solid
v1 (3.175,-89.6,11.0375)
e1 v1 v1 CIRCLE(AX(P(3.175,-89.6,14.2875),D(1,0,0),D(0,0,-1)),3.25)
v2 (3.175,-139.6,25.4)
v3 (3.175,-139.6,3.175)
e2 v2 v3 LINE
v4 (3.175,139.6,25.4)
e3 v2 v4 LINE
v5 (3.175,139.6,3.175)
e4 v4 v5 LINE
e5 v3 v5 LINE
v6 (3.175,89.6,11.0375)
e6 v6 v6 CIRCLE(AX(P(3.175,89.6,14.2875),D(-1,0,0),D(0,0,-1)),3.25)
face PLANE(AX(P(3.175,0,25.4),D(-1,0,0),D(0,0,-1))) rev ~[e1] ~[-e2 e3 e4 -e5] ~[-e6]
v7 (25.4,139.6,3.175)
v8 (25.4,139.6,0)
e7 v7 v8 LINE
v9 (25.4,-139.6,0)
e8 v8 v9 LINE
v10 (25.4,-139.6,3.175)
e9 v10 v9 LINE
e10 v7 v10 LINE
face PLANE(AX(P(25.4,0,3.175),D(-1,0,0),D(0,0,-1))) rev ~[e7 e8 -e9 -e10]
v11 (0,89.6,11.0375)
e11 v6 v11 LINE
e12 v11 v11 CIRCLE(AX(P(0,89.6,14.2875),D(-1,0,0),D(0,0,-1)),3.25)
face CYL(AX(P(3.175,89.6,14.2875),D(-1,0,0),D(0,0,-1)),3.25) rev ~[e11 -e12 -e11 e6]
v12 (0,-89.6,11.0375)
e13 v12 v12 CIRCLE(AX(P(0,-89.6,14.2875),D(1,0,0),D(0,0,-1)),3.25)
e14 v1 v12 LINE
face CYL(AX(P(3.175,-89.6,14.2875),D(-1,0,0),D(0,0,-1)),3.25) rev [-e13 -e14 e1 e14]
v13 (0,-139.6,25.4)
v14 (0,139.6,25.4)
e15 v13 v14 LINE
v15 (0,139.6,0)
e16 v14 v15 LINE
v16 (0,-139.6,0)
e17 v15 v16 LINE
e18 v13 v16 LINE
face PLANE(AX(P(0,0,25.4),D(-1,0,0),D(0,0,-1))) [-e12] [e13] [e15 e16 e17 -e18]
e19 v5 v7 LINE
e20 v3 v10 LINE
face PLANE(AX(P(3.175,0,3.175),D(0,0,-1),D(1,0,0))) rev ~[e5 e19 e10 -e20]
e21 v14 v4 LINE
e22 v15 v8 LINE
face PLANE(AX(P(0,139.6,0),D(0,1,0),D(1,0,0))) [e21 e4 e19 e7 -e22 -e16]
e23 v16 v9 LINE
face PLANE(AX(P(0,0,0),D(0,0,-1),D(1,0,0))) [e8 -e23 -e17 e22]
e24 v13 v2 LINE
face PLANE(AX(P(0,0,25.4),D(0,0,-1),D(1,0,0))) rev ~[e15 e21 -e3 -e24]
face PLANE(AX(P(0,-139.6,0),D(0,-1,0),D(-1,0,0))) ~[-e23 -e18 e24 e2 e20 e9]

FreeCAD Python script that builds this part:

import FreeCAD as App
import Part
import Sketcher

V = App.Vector
Q = App.Units.Quantity

doc = App.newDocument("Part")
body = doc.addObject("PartDesign::Body", "Body")

# Sketch on XZ plane
sketch1 = body.newObject("Sketcher::SketchObject", "Sketch")
sketch1.AttachmentSupport = (doc.getObject("XZ_Plane"), [""])
sketch1.MapMode = "FlatFace"
sketch1.addGeometry([
    Part.LineSegment(V(0, 0, 0), V(0, 25.4, 0)),  # 0
    Part.LineSegment(V(0, 25.4, 0), V(3.2, 25.4, 0)),  # 1
    Part.LineSegment(V(3.2, 25.4, 0), V(3.2, 3.2, 0)),  # 2
    Part.LineSegment(V(3.2, 3.2, 0), V(25.4, 3.2, 0)),  # 3
    Part.LineSegment(V(25.4, 3.2, 0), V(25.4, 0, 0)),  # 4
    Part.LineSegment(V(25.4, 0, 0), V(0, 0, 0)),  # 5
], False)
sketch1.addConstraint([
    Sketcher.Constraint("Coincident", 0, 2, 1, 1),
    Sketcher.Constraint("Coincident", 1, 2, 2, 1),
    Sketcher.Constraint("Coincident", 2, 2, 3, 1),
    Sketcher.Constraint("Coincident", 3, 2, 4, 1),
    Sketcher.Constraint("Coincident", 4, 2, 5, 1),
    Sketcher.Constraint("Coincident", 5, 2, 0, 1),
    Sketcher.Constraint("Vertical", 0),
    Sketcher.Constraint("Horizontal", 1),
    Sketcher.Constraint("Vertical", 2),
    Sketcher.Constraint("Horizontal", 3),
    Sketcher.Constraint("Vertical", 4),
    Sketcher.Constraint("Horizontal", 5),
    Sketcher.Constraint("Coincident", 5, 2, -1, 1),
    Sketcher.Constraint("Equal", 5, 0),
    Sketcher.Constraint("Equal", 3, 2),
    Sketcher.Constraint("DistanceX", 5, 2, 5, 1, Q("1 in")),
    Sketcher.Constraint("DistanceX", 1, 1, 1, 2, Q("0.125 in")),
])
pad1 = body.newObject("PartDesign::Pad", "Pad")
pad1.Profile = sketch1
pad1.Length = 139.6
pad1.Reversed = True

# Sketch on YZ plane
sketch2 = body.newObject("Sketcher::SketchObject", "Sketch001")
sketch2.AttachmentSupport = (doc.getObject("YZ_Plane"), [""])
sketch2.MapMode = "FlatFace"
sketch2.AttachmentOffset = App.Placement(V(0, 0, 0.125 * 25.4), App.Rotation())
sketch2.addGeometry(Part.Circle(V(89.6, 14.3, 0), V(0, 0, 1), 3.2), False)
sketch2.addConstraint([
    Sketcher.Constraint("Diameter", 0, Q("0.2559 in")),
    Sketcher.Constraint("DistanceY", -1, 1, 0, 3, Q("0.5625 in")),
    Sketcher.Constraint("DistanceX", -1, 1, 0, 3, 89.6),
])
doc.recompute()
hole = body.newObject("PartDesign::Hole", "Hole")
hole.Profile = sketch2
hole.ThreadType = "None"
hole.Diameter = Q("0.2559055 in")
hole.DepthType = "ThroughAll"
doc.recompute()

mirrored = body.newObject("PartDesign::Mirrored", "Mirrored")
mirrored.TransformMode = "Transform body"
mirrored.MirrorPlane = (doc.getObject("XZ_Plane"), [""])
body.Tip = mirrored

doc.recompute()
